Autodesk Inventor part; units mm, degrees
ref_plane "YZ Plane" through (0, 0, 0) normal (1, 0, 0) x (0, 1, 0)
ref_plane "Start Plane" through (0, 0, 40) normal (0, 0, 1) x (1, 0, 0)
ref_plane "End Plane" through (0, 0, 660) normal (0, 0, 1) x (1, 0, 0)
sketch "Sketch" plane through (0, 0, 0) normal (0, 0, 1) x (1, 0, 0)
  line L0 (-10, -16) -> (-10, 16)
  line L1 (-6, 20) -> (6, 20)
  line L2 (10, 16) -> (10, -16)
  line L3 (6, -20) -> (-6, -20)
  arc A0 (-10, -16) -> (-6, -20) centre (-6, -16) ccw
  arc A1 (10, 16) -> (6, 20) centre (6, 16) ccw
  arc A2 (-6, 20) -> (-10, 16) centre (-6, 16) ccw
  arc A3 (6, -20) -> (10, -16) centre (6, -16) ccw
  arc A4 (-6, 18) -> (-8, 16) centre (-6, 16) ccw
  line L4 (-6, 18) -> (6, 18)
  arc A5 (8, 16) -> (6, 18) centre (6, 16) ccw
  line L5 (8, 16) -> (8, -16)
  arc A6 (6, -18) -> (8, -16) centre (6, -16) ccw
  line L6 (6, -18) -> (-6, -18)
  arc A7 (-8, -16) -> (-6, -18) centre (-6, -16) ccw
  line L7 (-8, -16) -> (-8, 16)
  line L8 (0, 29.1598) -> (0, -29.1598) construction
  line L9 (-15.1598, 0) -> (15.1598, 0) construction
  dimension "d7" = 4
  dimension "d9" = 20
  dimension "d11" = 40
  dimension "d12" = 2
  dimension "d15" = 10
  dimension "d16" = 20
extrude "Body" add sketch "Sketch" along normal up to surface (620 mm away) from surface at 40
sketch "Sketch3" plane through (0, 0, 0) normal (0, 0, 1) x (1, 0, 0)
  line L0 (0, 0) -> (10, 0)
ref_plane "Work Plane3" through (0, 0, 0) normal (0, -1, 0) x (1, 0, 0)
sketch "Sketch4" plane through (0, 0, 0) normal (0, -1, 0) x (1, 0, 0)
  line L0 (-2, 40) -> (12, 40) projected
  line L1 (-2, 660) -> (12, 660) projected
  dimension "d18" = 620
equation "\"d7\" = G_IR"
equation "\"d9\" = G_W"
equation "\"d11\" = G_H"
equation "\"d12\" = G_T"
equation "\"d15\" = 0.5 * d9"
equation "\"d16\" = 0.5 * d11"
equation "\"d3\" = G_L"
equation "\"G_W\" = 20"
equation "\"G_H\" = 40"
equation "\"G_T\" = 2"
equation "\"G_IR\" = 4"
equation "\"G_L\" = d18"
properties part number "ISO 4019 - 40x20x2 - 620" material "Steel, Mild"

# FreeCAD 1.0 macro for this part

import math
import FreeCAD as App
import Part
import Sketcher

V = App.Vector

doc = App.newDocument("Part")
params = doc.addObject("Spreadsheet::Sheet", "Params")
for row, (alias, value) in enumerate([
    ("sketch1_radius", "4 mm"),
    ("sketch1_radius2", "2 mm"),
    ("pad1_length", "620 mm"),
], start=1):
    params.set(f"A{row}", alias)
    params.set(f"B{row}", "=" + value)
    params.setAlias(f"B{row}", alias)

body = doc.addObject("PartDesign::Body", "Body")

sketch1 = doc.addObject("Sketcher::SketchObject", "Sketch")
body.addObject(sketch1)
sketch1.AttachmentSupport = (doc.XY_Plane, [""])
sketch1.MapMode = "FlatFace"
sketch1.AttachmentOffset = App.Placement(V(0, 0, 40), App.Rotation())
sketch1.addGeometry([
    Part.LineSegment(V(-10, 16, 0), V(-10, -16, 0)),
    Part.ArcOfCircle(Part.Circle(V(-6, -16, 0), V(0, 0, 1), 4), math.radians(180), math.radians(270)),
    Part.LineSegment(V(-6, -20, 0), V(6, -20, 0)),
    Part.ArcOfCircle(Part.Circle(V(6, -16, 0), V(0, 0, 1), 4), math.radians(-90), math.radians(0)),
    Part.LineSegment(V(10, -16, 0), V(10, 16, 0)),
    Part.ArcOfCircle(Part.Circle(V(6, 16, 0), V(0, 0, 1), 4), math.radians(0), math.radians(90)),
    Part.LineSegment(V(6, 20, 0), V(-6, 20, 0)),
    Part.ArcOfCircle(Part.Circle(V(-6, 16, 0), V(0, 0, 1), 4), math.radians(90), math.radians(180)),
    Part.ArcOfCircle(Part.Circle(V(-6, 16, 0), V(0, 0, 1), 2), math.radians(90), math.radians(180)),
    Part.LineSegment(V(-6, 18, 0), V(6, 18, 0)),
    Part.ArcOfCircle(Part.Circle(V(6, 16, 0), V(0, 0, 1), 2), math.radians(0), math.radians(90)),
    Part.LineSegment(V(8, 16, 0), V(8, -16, 0)),
    Part.ArcOfCircle(Part.Circle(V(6, -16, 0), V(0, 0, 1), 2), math.radians(-90), math.radians(0)),
    Part.LineSegment(V(6, -18, 0), V(-6, -18, 0)),
    Part.ArcOfCircle(Part.Circle(V(-6, -16, 0), V(0, 0, 1), 2), math.radians(180), math.radians(270)),
    Part.LineSegment(V(-8, -16, 0), V(-8, 16, 0)),
], False)
sketch1.addConstraint([
    Sketcher.Constraint("Tangent", 0, 2, 1, 1),
    Sketcher.Constraint("Tangent", 1, 2, 2, 1),
    Sketcher.Constraint("Tangent", 2, 2, 3, 1),
    Sketcher.Constraint("Tangent", 3, 2, 4, 1),
    Sketcher.Constraint("Tangent", 4, 2, 5, 1),
    Sketcher.Constraint("Tangent", 5, 2, 6, 1),
    Sketcher.Constraint("Tangent", 6, 2, 7, 1),
    Sketcher.Constraint("Tangent", 7, 2, 0, 1),
    Sketcher.Constraint("Tangent", 8, 1, 9, 1),
    Sketcher.Constraint("Tangent", 9, 2, 10, 2),
    Sketcher.Constraint("Tangent", 10, 1, 11, 1),
    Sketcher.Constraint("Tangent", 11, 2, 12, 2),
    Sketcher.Constraint("Tangent", 12, 1, 13, 1),
    Sketcher.Constraint("Tangent", 13, 2, 14, 2),
    Sketcher.Constraint("Tangent", 14, 1, 15, 1),
    Sketcher.Constraint("Tangent", 15, 2, 8, 2),
    Sketcher.Constraint("Vertical", 0),
    Sketcher.Constraint("Horizontal", 2),
    Sketcher.Constraint("Vertical", 4),
    Sketcher.Constraint("Horizontal", 6),
    Sketcher.Constraint("Horizontal", 9),
    Sketcher.Constraint("Vertical", 11),
    Sketcher.Constraint("Horizontal", 13),
    Sketcher.Constraint("Vertical", 15),
    Sketcher.Constraint("Coincident", 8, 3, 7, 3),
    Sketcher.Constraint("Coincident", 10, 3, 5, 3),
    Sketcher.Constraint("Coincident", 12, 3, 3, 3),
    Sketcher.Constraint("Equal", 1, 3),
    Sketcher.Constraint("Equal", 3, 5),
    Sketcher.Constraint("Equal", 5, 7),
    Sketcher.Constraint("Equal", 12, 14),
    Sketcher.Constraint("Symmetric", 1, 3, 5, 3, -1, 1),
    Sketcher.Constraint("Radius", 1, 4.0),
    Sketcher.Constraint("Radius", 8, 2.0),
    Sketcher.Constraint("DistanceX", 0, 2, -1, 1, 10.0),
    Sketcher.Constraint("DistanceY", 1, 2, -1, 1, 20.0),
])
sketch1.setExpression("Constraints[32]", "Params.sketch1_radius")
sketch1.setExpression("Constraints[33]", "Params.sketch1_radius2")
pad1 = doc.addObject("PartDesign::Pad", "Pad")
body.addObject(pad1)
pad1.Profile = sketch1
pad1.setExpression("Length", "Params.pad1_length")

doc.recompute()
